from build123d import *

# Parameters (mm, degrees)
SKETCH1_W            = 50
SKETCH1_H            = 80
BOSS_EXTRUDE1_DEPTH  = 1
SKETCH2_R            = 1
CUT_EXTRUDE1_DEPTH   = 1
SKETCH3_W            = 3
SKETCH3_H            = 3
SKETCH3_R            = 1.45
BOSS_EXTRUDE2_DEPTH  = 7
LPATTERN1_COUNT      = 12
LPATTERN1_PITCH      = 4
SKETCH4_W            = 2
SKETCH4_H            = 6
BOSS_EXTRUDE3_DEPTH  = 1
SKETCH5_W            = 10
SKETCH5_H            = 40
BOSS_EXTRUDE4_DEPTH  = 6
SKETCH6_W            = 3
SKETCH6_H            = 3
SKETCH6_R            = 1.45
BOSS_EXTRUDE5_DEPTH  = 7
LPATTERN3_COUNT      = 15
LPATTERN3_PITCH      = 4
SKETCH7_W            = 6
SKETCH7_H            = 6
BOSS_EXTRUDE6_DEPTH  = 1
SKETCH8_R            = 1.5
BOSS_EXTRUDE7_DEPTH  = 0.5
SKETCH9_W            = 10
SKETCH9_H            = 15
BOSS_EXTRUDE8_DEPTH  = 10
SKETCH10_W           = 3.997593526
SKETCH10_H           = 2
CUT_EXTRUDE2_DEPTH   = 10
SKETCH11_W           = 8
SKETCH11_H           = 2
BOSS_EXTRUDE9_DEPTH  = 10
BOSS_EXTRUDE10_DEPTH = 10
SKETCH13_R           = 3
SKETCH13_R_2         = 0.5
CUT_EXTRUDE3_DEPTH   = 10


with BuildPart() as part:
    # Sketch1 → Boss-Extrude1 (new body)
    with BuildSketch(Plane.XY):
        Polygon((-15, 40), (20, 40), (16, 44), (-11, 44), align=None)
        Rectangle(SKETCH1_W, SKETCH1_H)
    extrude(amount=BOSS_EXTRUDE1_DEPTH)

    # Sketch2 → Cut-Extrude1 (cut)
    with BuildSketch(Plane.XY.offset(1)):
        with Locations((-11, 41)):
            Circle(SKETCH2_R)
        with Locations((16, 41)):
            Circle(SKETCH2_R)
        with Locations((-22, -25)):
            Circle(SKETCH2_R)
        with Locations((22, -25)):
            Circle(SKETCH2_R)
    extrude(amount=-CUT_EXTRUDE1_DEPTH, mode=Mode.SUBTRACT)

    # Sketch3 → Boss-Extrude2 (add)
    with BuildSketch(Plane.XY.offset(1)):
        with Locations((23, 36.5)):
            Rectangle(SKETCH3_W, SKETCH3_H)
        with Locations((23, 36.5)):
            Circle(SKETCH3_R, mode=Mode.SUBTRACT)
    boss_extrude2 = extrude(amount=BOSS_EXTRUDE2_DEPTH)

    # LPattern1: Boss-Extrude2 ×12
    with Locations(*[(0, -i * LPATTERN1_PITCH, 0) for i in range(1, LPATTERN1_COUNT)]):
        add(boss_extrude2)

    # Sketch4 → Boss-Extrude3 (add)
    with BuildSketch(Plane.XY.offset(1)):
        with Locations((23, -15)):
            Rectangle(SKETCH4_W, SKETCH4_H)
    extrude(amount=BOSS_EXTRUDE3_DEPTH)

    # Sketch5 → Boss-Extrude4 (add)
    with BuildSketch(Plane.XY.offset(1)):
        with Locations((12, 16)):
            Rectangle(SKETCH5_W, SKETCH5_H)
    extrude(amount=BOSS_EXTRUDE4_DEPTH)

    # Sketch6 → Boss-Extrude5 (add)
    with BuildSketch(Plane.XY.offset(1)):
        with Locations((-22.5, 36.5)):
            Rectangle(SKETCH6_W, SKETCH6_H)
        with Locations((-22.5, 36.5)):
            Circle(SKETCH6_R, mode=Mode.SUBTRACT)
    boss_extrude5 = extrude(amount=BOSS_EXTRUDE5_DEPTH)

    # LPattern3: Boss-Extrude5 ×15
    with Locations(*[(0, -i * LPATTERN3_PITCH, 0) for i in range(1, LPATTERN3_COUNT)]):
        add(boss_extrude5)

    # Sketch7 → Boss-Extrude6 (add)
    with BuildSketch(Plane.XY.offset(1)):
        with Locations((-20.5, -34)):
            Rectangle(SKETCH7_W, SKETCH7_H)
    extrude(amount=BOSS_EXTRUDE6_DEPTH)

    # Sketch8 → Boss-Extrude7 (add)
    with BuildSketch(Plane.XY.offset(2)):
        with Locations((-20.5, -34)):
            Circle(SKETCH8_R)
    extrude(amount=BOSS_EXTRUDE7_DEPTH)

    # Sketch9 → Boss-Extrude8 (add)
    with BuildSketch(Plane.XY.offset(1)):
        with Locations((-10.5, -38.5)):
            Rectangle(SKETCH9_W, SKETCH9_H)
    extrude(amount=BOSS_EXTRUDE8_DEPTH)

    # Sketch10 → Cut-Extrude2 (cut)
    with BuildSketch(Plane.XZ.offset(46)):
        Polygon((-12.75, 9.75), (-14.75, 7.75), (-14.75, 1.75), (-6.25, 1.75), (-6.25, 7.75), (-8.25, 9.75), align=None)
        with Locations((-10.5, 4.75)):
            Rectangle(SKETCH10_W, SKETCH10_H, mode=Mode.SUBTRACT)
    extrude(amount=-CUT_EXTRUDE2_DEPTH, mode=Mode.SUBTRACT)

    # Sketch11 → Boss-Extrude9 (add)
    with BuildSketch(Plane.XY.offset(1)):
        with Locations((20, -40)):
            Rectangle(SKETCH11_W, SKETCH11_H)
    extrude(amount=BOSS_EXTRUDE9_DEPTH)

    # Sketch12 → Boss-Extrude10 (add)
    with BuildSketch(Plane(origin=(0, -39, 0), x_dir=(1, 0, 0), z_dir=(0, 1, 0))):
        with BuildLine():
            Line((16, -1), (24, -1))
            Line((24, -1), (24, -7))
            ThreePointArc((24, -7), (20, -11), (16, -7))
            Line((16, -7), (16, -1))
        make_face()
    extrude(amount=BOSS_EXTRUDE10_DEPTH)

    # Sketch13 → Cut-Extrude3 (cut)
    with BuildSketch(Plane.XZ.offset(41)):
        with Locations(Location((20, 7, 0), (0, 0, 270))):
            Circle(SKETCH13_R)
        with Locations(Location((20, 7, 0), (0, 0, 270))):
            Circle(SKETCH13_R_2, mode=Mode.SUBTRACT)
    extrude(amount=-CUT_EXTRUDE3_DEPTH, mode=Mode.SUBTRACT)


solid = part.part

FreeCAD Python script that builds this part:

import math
import FreeCAD as App
import Part
import Sketcher
from FreeCAD import Vector

doc = App.newDocument("Part")
body = doc.addObject("PartDesign::Body", "Body")

sketch1 = doc.addObject("Sketcher::SketchObject", "Sketch")
body.addObject(sketch1)
sketch1.AttachmentSupport = (doc.XY_Plane, [""])
sketch1.MapMode = "FlatFace"
sketch1.addGeometry(Part.LineSegment(Vector(20, 40, 0), Vector(16, 44, 0)), False)
sketch1.addGeometry(Part.LineSegment(Vector(16, 44, 0), Vector(-11, 44, 0)), False)
sketch1.addGeometry(Part.LineSegment(Vector(-11, 44, 0), Vector(-15, 40, 0)), False)
sketch1.addGeometry(Part.LineSegment(Vector(-15, 40, 0), Vector(-25, 40, 0)), False)
sketch1.addGeometry(Part.LineSegment(Vector(-25, 40, 0), Vector(-25, -40, 0)), False)
sketch1.addGeometry(Part.LineSegment(Vector(-25, -40, 0), Vector(25, -40, 0)), False)
sketch1.addGeometry(Part.LineSegment(Vector(25, -40, 0), Vector(25, 40, 0)), False)
sketch1.addGeometry(Part.LineSegment(Vector(25, 40, 0), Vector(20, 40, 0)), False)
sketch1.addConstraint(Sketcher.Constraint("Coincident", 0, 2, 1, 1))
sketch1.addConstraint(Sketcher.Constraint("Coincident", 1, 2, 2, 1))
sketch1.addConstraint(Sketcher.Constraint("Coincident", 2, 2, 3, 1))
sketch1.addConstraint(Sketcher.Constraint("Coincident", 3, 2, 4, 1))
sketch1.addConstraint(Sketcher.Constraint("Coincident", 4, 2, 5, 1))
sketch1.addConstraint(Sketcher.Constraint("Coincident", 5, 2, 6, 1))
sketch1.addConstraint(Sketcher.Constraint("Coincident", 6, 2, 7, 1))
sketch1.addConstraint(Sketcher.Constraint("Coincident", 7, 2, 0, 1))
sketch1.addConstraint(Sketcher.Constraint("Horizontal", 1))
sketch1.addConstraint(Sketcher.Constraint("Horizontal", 3))
sketch1.addConstraint(Sketcher.Constraint("Vertical", 4))
sketch1.addConstraint(Sketcher.Constraint("Horizontal", 5))
sketch1.addConstraint(Sketcher.Constraint("Vertical", 6))
sketch1.addConstraint(Sketcher.Constraint("Horizontal", 7))
sketch1.addConstraint(Sketcher.Constraint("Symmetric", 3, 2, 5, 2, -1, 1))
sketch1.addConstraint(Sketcher.Constraint("Perpendicular", 0, 2))
sketch1.addConstraint(Sketcher.Constraint("Horizontal", 3, 2, 6, 2))
sketch1.addConstraint(Sketcher.Constraint("Equal", 0, 2))
sketch1.addConstraint(Sketcher.Constraint("DistanceX", 1, 2, 1, 1, 27.0))
sketch1.addConstraint(Sketcher.Constraint("DistanceX", 3, 2, 3, 1, 10.0))
sketch1.addConstraint(Sketcher.Constraint("DistanceX", 5, 1, 5, 2, 50.0))
sketch1.addConstraint(Sketcher.Constraint("DistanceX", 7, 2, 7, 1, 5.0))
sketch1.addConstraint(Sketcher.Constraint("DistanceY", 4, 2, 4, 1, 80.0))
pad1 = doc.addObject("PartDesign::Pad", "Pad")
body.addObject(pad1)
pad1.Profile = sketch1
pad1.Length = 1

sketch2 = doc.addObject("Sketcher::SketchObject", "Sketch001")
body.addObject(sketch2)
sketch2.AttachmentSupport = (doc.XY_Plane, [""])
sketch2.MapMode = "FlatFace"
sketch2.AttachmentOffset = App.Placement(Vector(0, 0, 1), App.Rotation())
sketch2.addGeometry(Part.Circle(Vector(-11, 41, 0), Vector(0, 0, 1), 1), False)
sketch2.addGeometry(Part.Circle(Vector(16, 41, 0), Vector(0, 0, 1), 1), False)
sketch2.addGeometry(Part.Circle(Vector(-22, -25, 0), Vector(0, 0, 1), 1), False)
sketch2.addGeometry(Part.Circle(Vector(22, -25, 0), Vector(0, 0, 1), 1), False)
sketch2.addConstraint(Sketcher.Constraint("Equal", 0, 1))
sketch2.addConstraint(Sketcher.Constraint("Equal", 1, 2))
sketch2.addConstraint(Sketcher.Constraint("Equal", 2, 3))
sketch2.addConstraint(Sketcher.Constraint("Symmetric", 2, 3, 3, 3, -2))
sketch2.addConstraint(Sketcher.Constraint("Horizontal", 0, 3, 1, 3))
sketch2.addConstraint(Sketcher.Constraint("Diameter", 0, 2.0))
sketch2.addConstraint(Sketcher.Constraint("DistanceX", 0, 3, -1, 1, 11.0))
sketch2.addConstraint(Sketcher.Constraint("DistanceY", -1, 1, 0, 3, 41.0))
sketch2.addConstraint(Sketcher.Constraint("DistanceX", -1, 1, 1, 3, 16.0))
sketch2.addConstraint(Sketcher.Constraint("DistanceX", 2, 3, -1, 1, 22.0))
sketch2.addConstraint(Sketcher.Constraint("DistanceY", 2, 3, -1, 1, 25.0))
pocket1 = doc.addObject("PartDesign::Pocket", "Pocket")
body.addObject(pocket1)
pocket1.Profile = sketch2
pocket1.Length = 1

sketch3 = doc.addObject("Sketcher::SketchObject", "Sketch002")
body.addObject(sketch3)
sketch3.AttachmentSupport = (doc.XY_Plane, [""])
sketch3.MapMode = "FlatFace"
sketch3.AttachmentOffset = App.Placement(Vector(0, 0, 1), App.Rotation())
sketch3.addGeometry(Part.LineSegment(Vector(21.5, 38, 0), Vector(21.5, 35, 0)), False)
sketch3.addGeometry(Part.LineSegment(Vector(21.5, 35, 0), Vector(24.5, 35, 0)), False)
sketch3.addGeometry(Part.LineSegment(Vector(24.5, 35, 0), Vector(24.5, 38, 0)), False)
sketch3.addGeometry(Part.LineSegment(Vector(24.5, 38, 0), Vector(21.5, 38, 0)), False)
sketch3.addGeometry(Part.Circle(Vector(23, 36.5, 0), Vector(0, 0, 1), 1.45), False)
sketch3.addConstraint(Sketcher.Constraint("Coincident", 0, 2, 1, 1))
sketch3.addConstraint(Sketcher.Constraint("Coincident", 1, 2, 2, 1))
sketch3.addConstraint(Sketcher.Constraint("Coincident", 2, 2, 3, 1))
sketch3.addConstraint(Sketcher.Constraint("Coincident", 3, 2, 0, 1))
sketch3.addConstraint(Sketcher.Constraint("Vertical", 0))
sketch3.addConstraint(Sketcher.Constraint("Horizontal", 1))
sketch3.addConstraint(Sketcher.Constraint("Vertical", 2))
sketch3.addConstraint(Sketcher.Constraint("Horizontal", 3))
sketch3.addConstraint(Sketcher.Constraint("Equal", 3, 0))
sketch3.addConstraint(Sketcher.Constraint("Diameter", 4, 2.9))
sketch3.addConstraint(Sketcher.Constraint("DistanceX", 1, 1, 1, 2, 3.0))
sketch3.addConstraint(Sketcher.Constraint("DistanceX", -1, 1, 4, 3, 23.0))
sketch3.addConstraint(Sketcher.Constraint("DistanceY", -1, 1, 0, 2, 35.0))
sketch3.addConstraint(Sketcher.Constraint("DistanceY", -1, 1, 4, 3, 36.5))
sketch3.addConstraint(Sketcher.Constraint("DistanceX", -1, 1, 0, 2, 21.5))
pad2 = doc.addObject("PartDesign::Pad", "Pad001")
body.addObject(pad2)
pad2.Profile = sketch3
pad2.Length = 7
doc.recompute()

linearpattern = doc.addObject("PartDesign::LinearPattern", "LinearPattern")
body.addObject(linearpattern)
linearpattern.Originals = [pad2]
linearpattern.Direction = (doc.Y_Axis, [""])
linearpattern.Mode = "offset"
linearpattern.Offset = 4
linearpattern.Occurrences = 12
linearpattern.Reversed = True
body.Tip = linearpattern

sketch4 = doc.addObject("Sketcher::SketchObject", "Sketch003")
body.addObject(sketch4)
sketch4.AttachmentSupport = (doc.XY_Plane, [""])
sketch4.MapMode = "FlatFace"
sketch4.AttachmentOffset = App.Placement(Vector(0, 0, 1), App.Rotation())
sketch4.addGeometry(Part.LineSegment(Vector(22, -12, 0), Vector(22, -18, 0)), False)
sketch4.addGeometry(Part.LineSegment(Vector(22, -18, 0), Vector(24, -18, 0)), False)
sketch4.addGeometry(Part.LineSegment(Vector(24, -18, 0), Vector(24, -12, 0)), False)
sketch4.addGeometry(Part.LineSegment(Vector(24, -12, 0), Vector(22, -12, 0)), False)
sketch4.addConstraint(Sketcher.Constraint("Coincident", 0, 2, 1, 1))
sketch4.addConstraint(Sketcher.Constraint("Coincident", 1, 2, 2, 1))
sketch4.addConstraint(Sketcher.Constraint("Coincident", 2, 2, 3, 1))
sketch4.addConstraint(Sketcher.Constraint("Coincident", 3, 2, 0, 1))
sketch4.addConstraint(Sketcher.Constraint("Vertical", 0))
sketch4.addConstraint(Sketcher.Constraint("Horizontal", 1))
sketch4.addConstraint(Sketcher.Constraint("Vertical", 2))
sketch4.addConstraint(Sketcher.Constraint("Horizontal", 3))
sketch4.addConstraint(Sketcher.Constraint("DistanceX", 1, 1, 1, 2, 2.0))
sketch4.addConstraint(Sketcher.Constraint("DistanceY", 0, 2, 0, 1, 6.0))
sketch4.addConstraint(Sketcher.Constraint("DistanceX", -1, 1, 0, 2, 22.0))
sketch4.addConstraint(Sketcher.Constraint("DistanceY", 0, 2, -1, 1, 18.0))
pad3 = doc.addObject("PartDesign::Pad", "Pad002")
body.addObject(pad3)
pad3.Profile = sketch4
pad3.Length = 1

sketch5 = doc.addObject("Sketcher::SketchObject", "Sketch004")
body.addObject(sketch5)
sketch5.AttachmentSupport = (doc.XY_Plane, [""])
sketch5.MapMode = "FlatFace"
sketch5.AttachmentOffset = App.Placement(Vector(0, 0, 1), App.Rotation())
sketch5.addGeometry(Part.LineSegment(Vector(7, 36, 0), Vector(7, -4, 0)), False)
sketch5.addGeometry(Part.LineSegment(Vector(7, -4, 0), Vector(17, -4, 0)), False)
sketch5.addGeometry(Part.LineSegment(Vector(17, -4, 0), Vector(17, 36, 0)), False)
sketch5.addGeometry(Part.LineSegment(Vector(17, 36, 0), Vector(7, 36, 0)), False)
sketch5.addConstraint(Sketcher.Constraint("Coincident", 0, 2, 1, 1))
sketch5.addConstraint(Sketcher.Constraint("Coincident", 1, 2, 2, 1))
sketch5.addConstraint(Sketcher.Constraint("Coincident", 2, 2, 3, 1))
sketch5.addConstraint(Sketcher.Constraint("Coincident", 3, 2, 0, 1))
sketch5.addConstraint(Sketcher.Constraint("Vertical", 0))
sketch5.addConstraint(Sketcher.Constraint("Horizontal", 1))
sketch5.addConstraint(Sketcher.Constraint("Vertical", 2))
sketch5.addConstraint(Sketcher.Constraint("Horizontal", 3))
sketch5.addConstraint(Sketcher.Constraint("DistanceX", 1, 1, 1, 2, 10.0))
sketch5.addConstraint(Sketcher.Constraint("DistanceY", 0, 2, 0, 1, 40.0))
sketch5.addConstraint(Sketcher.Constraint("DistanceX", -1, 1, 0, 2, 7.0))
sketch5.addConstraint(Sketcher.Constraint("DistanceY", 0, 2, -1, 1, 4.0))
pad4 = doc.addObject("PartDesign::Pad", "Pad003")
body.addObject(pad4)
pad4.Profile = sketch5
pad4.Length = 6

sketch6 = doc.addObject("Sketcher::SketchObject", "Sketch005")
body.addObject(sketch6)
sketch6.AttachmentSupport = (doc.XY_Plane, [""])
sketch6.MapMode = "FlatFace"
sketch6.AttachmentOffset = App.Placement(Vector(0, 0, 1), App.Rotation())
sketch6.addGeometry(Part.LineSegment(Vector(-24, 38, 0), Vector(-24, 35, 0)), False)
sketch6.addGeometry(Part.LineSegment(Vector(-24, 35, 0), Vector(-21, 35, 0)), False)
sketch6.addGeometry(Part.LineSegment(Vector(-21, 35, 0), Vector(-21, 38, 0)), False)
sketch6.addGeometry(Part.LineSegment(Vector(-21, 38, 0), Vector(-24, 38, 0)), False)
sketch6.addGeometry(Part.Circle(Vector(-22.5, 36.5, 0), Vector(0, 0, 1), 1.45), False)
sketch6.addConstraint(Sketcher.Constraint("Coincident", 0, 2, 1, 1))
sketch6.addConstraint(Sketcher.Constraint("Coincident", 1, 2, 2, 1))
sketch6.addConstraint(Sketcher.Constraint("Coincident", 2, 2, 3, 1))
sketch6.addConstraint(Sketcher.Constraint("Coincident", 3, 2, 0, 1))
sketch6.addConstraint(Sketcher.Constraint("Vertical", 0))
sketch6.addConstraint(Sketcher.Constraint("Horizontal", 1))
sketch6.addConstraint(Sketcher.Constraint("Vertical", 2))
sketch6.addConstraint(Sketcher.Constraint("Horizontal", 3))
sketch6.addConstraint(Sketcher.Constraint("Equal", 3, 0))
sketch6.addConstraint(Sketcher.Constraint("Diameter", 4, 2.9))
sketch6.addConstraint(Sketcher.Constraint("DistanceX", 1, 1, 1, 2, 3.0))
sketch6.addConstraint(Sketcher.Constraint("DistanceX", 0, 2, -1, 1, 24.0))
sketch6.addConstraint(Sketcher.Constraint("DistanceY", -1, 1, 0, 2, 35.0))
sketch6.addConstraint(Sketcher.Constraint("DistanceX", 4, 3, -1, 1, 22.5))
sketch6.addConstraint(Sketcher.Constraint("DistanceY", -1, 1, 4, 3, 36.5))
pad5 = doc.addObject("PartDesign::Pad", "Pad004")
body.addObject(pad5)
pad5.Profile = sketch6
pad5.Length = 7
doc.recompute()

linearpattern2 = doc.addObject("PartDesign::LinearPattern", "LinearPattern001")
body.addObject(linearpattern2)
linearpattern2.Originals = [pad5]
linearpattern2.Direction = (doc.Y_Axis, [""])
linearpattern2.Mode = "offset"
linearpattern2.Offset = 4
linearpattern2.Occurrences = 15
linearpattern2.Reversed = True
body.Tip = linearpattern2

sketch7 = doc.addObject("Sketcher::SketchObject", "Sketch006")
body.addObject(sketch7)
sketch7.AttachmentSupport = (doc.XY_Plane, [""])
sketch7.MapMode = "FlatFace"
sketch7.AttachmentOffset = App.Placement(Vector(0, 0, 1), App.Rotation())
sketch7.addGeometry(Part.LineSegment(Vector(-23.5, -31, 0), Vector(-23.5, -37, 0)), False)
sketch7.addGeometry(Part.LineSegment(Vector(-23.5, -37, 0), Vector(-17.5, -37, 0)), False)
sketch7.addGeometry(Part.LineSegment(Vector(-17.5, -37, 0), Vector(-17.5, -31, 0)), False)
sketch7.addGeometry(Part.LineSegment(Vector(-17.5, -31, 0), Vector(-23.5, -31, 0)), False)
sketch7.addConstraint(Sketcher.Constraint("Coincident", 0, 2, 1, 1))
sketch7.addConstraint(Sketcher.Constraint("Coincident", 1, 2, 2, 1))
sketch7.addConstraint(Sketcher.Constraint("Coincident", 2, 2, 3, 1))
sketch7.addConstraint(Sketcher.Constraint("Coincident", 3, 2, 0, 1))
sketch7.addConstraint(Sketcher.Constraint("Vertical", 0))
sketch7.addConstraint(Sketcher.Constraint("Horizontal", 1))
sketch7.addConstraint(Sketcher.Constraint("Vertical", 2))
sketch7.addConstraint(Sketcher.Constraint("Horizontal", 3))
sketch7.addConstraint(Sketcher.Constraint("Equal", 3, 0))
sketch7.addConstraint(Sketcher.Constraint("DistanceX", 1, 1, 1, 2, 6.0))
sketch7.addConstraint(Sketcher.Constraint("DistanceY", 0, 2, -1, 1, 37.0))
sketch7.addConstraint(Sketcher.Constraint("DistanceX", 0, 2, -1, 1, 23.5))
pad6 = doc.addObject("PartDesign::Pad", "Pad005")
body.addObject(pad6)
pad6.Profile = sketch7
pad6.Length = 1

sketch8 = doc.addObject("Sketcher::SketchObject", "Sketch007")
body.addObject(sketch8)
sketch8.AttachmentSupport = (doc.XY_Plane, [""])
sketch8.MapMode = "FlatFace"
sketch8.AttachmentOffset = App.Placement(Vector(0, 0, 2), App.Rotation())
sketch8.addGeometry(Part.Circle(Vector(-20.5, -34, 0), Vector(0, 0, 1), 1.5), False)
sketch8.addConstraint(Sketcher.Constraint("Diameter", 0, 3.0))
sketch8.addConstraint(Sketcher.Constraint("DistanceY", 0, 3, -1, 1, 34.0))
sketch8.addConstraint(Sketcher.Constraint("DistanceX", 0, 3, -1, 1, 20.5))
pad7 = doc.addObject("PartDesign::Pad", "Pad006")
body.addObject(pad7)
pad7.Profile = sketch8
pad7.Length = 0.5

sketch9 = doc.addObject("Sketcher::SketchObject", "Sketch008")
body.addObject(sketch9)
sketch9.AttachmentSupport = (doc.XY_Plane, [""])
sketch9.MapMode = "FlatFace"
sketch9.AttachmentOffset = App.Placement(Vector(0, 0, 1), App.Rotation())
sketch9.addGeometry(Part.LineSegment(Vector(-15.5, -31, 0), Vector(-15.5, -46, 0)), False)
sketch9.addGeometry(Part.LineSegment(Vector(-15.5, -46, 0), Vector(-5.5, -46, 0)), False)
sketch9.addGeometry(Part.LineSegment(Vector(-5.5, -46, 0), Vector(-5.5, -31, 0)), False)
sketch9.addGeometry(Part.LineSegment(Vector(-5.5, -31, 0), Vector(-15.5, -31, 0)), False)
sketch9.addConstraint(Sketcher.Constraint("Coincident", 0, 2, 1, 1))
sketch9.addConstraint(Sketcher.Constraint("Coincident", 1, 2, 2, 1))
sketch9.addConstraint(Sketcher.Constraint("Coincident", 2, 2, 3, 1))
sketch9.addConstraint(Sketcher.Constraint("Coincident", 3, 2, 0, 1))
sketch9.addConstraint(Sketcher.Constraint("Vertical", 0))
sketch9.addConstraint(Sketcher.Constraint("Horizontal", 1))
sketch9.addConstraint(Sketcher.Constraint("Vertical", 2))
sketch9.addConstraint(Sketcher.Constraint("Horizontal", 3))
sketch9.addConstraint(Sketcher.Constraint("DistanceX", 1, 1, 1, 2, 10.0))
sketch9.addConstraint(Sketcher.Constraint("DistanceY", 0, 2, 0, 1, 15.0))
sketch9.addConstraint(Sketcher.Constraint("DistanceY", 0, 2, -1, 1, 46.0))
sketch9.addConstraint(Sketcher.Constraint("DistanceX", 0, 2, -1, 1, 15.5))
pad8 = doc.addObject("PartDesign::Pad", "Pad007")
body.addObject(pad8)
pad8.Profile = sketch9
pad8.Length = 10

sketch10 = doc.addObject("Sketcher::SketchObject", "Sketch009")
body.addObject(sketch10)
sketch10.AttachmentSupport = (doc.XZ_Plane, [""])
sketch10.MapMode = "FlatFace"
sketch10.AttachmentOffset = App.Placement(Vector(0, 0, 46), App.Rotation())
sketch10.addGeometry(Part.LineSegment(Vector(-12.75, 9.75, 0), Vector(-14.75, 7.75, 0)), False)
sketch10.addGeometry(Part.LineSegment(Vector(-14.75, 7.75, 0), Vector(-14.75, 1.75, 0)), False)
sketch10.addGeometry(Part.LineSegment(Vector(-14.75, 1.75, 0), Vector(-6.25, 1.75, 0)), False)
sketch10.addGeometry(Part.LineSegment(Vector(-6.25, 1.75, 0), Vector(-6.25, 7.75, 0)), False)
sketch10.addGeometry(Part.LineSegment(Vector(-6.25, 7.75, 0), Vector(-8.25, 9.75, 0)), False)
sketch10.addGeometry(Part.LineSegment(Vector(-8.25, 9.75, 0), Vector(-12.75, 9.75, 0)), False)
sketch10.addGeometry(Part.LineSegment(Vector(-8.501203, 3.75, 0), Vector(-12.498797, 3.75, 0)), False)
sketch10.addGeometry(Part.LineSegment(Vector(-12.498797, 3.75, 0), Vector(-12.498797, 5.75, 0)), False)
sketch10.addGeometry(Part.LineSegment(Vector(-12.498797, 5.75, 0), Vector(-8.501203, 5.75, 0)), False)
sketch10.addGeometry(Part.LineSegment(Vector(-8.501203, 5.75, 0), Vector(-8.501203, 3.75, 0)), False)
sketch10.addConstraint(Sketcher.Constraint("Coincident", 0, 2, 1, 1))
sketch10.addConstraint(Sketcher.Constraint("Coincident", 1, 2, 2, 1))
sketch10.addConstraint(Sketcher.Constraint("Coincident", 2, 2, 3, 1))
sketch10.addConstraint(Sketcher.Constraint("Coincident", 3, 2, 4, 1))
sketch10.addConstraint(Sketcher.Constraint("Coincident", 4, 2, 5, 1))
sketch10.addConstraint(Sketcher.Constraint("Coincident", 5, 2, 0, 1))
sketch10.addConstraint(Sketcher.Constraint("Coincident", 6, 2, 7, 1))
sketch10.addConstraint(Sketcher.Constraint("Coincident", 7, 2, 8, 1))
sketch10.addConstraint(Sketcher.Constraint("Coincident", 8, 2, 9, 1))
sketch10.addConstraint(Sketcher.Constraint("Coincident", 9, 2, 6, 1))
sketch10.addConstraint(Sketcher.Constraint("Vertical", 1))
sketch10.addConstraint(Sketcher.Constraint("Horizontal", 2))
sketch10.addConstraint(Sketcher.Constraint("Vertical", 3))
sketch10.addConstraint(Sketcher.Constraint("Horizontal", 5))
sketch10.addConstraint(Sketcher.Constraint("Horizontal", 6))
sketch10.addConstraint(Sketcher.Constraint("Vertical", 7))
sketch10.addConstraint(Sketcher.Constraint("Horizontal", 8))
sketch10.addConstraint(Sketcher.Constraint("Vertical", 9))
sketch10.addConstraint(Sketcher.Constraint("Perpendicular", 0, 4))
sketch10.addConstraint(Sketcher.Constraint("Horizontal", 0, 2, 3, 2))
sketch10.addConstraint(Sketcher.Constraint("Equal", 0, 4))
sketch10.addConstraint(Sketcher.Constraint("DistanceY", 1, 2, 1, 1, 6.0))
sketch10.addConstraint(Sketcher.Constraint("DistanceY", 7, 1, 7, 2, 2.0))
sketch10.addConstraint(Sketcher.Constraint("DistanceX", 2, 1, 2, 2, 8.5))
sketch10.addConstraint(Sketcher.Constraint("DistanceX", 5, 2, 5, 1, 4.5))
sketch10.addConstraint(Sketcher.Constraint("DistanceY", 1, 2, 6, 2, 2.0))
sketch10.addConstraint(Sketcher.Constraint("DistanceX", 0, 2, -1, 1, 14.75))
sketch10.addConstraint(Sketcher.Constraint("DistanceY", -1, 1, 0, 2, 7.75))
sketch10.addConstraint(Sketcher.Constraint("DistanceX", 6, 2, 6, 1, 3.997594))
sketch10.addConstraint(Sketcher.Constraint("DistanceX", 6, 2, -1, 1, 12.498797))
pocket2 = doc.addObject("PartDesign::Pocket", "Pocket001")
body.addObject(pocket2)
pocket2.Profile = sketch10
pocket2.Length = 10

sketch11 = doc.addObject("Sketcher::SketchObject", "Sketch010")
body.addObject(sketch11)
sketch11.AttachmentSupport = (doc.XY_Plane, [""])
sketch11.MapMode = "FlatFace"
sketch11.AttachmentOffset = App.Placement(Vector(0, 0, 1), App.Rotation())
sketch11.addGeometry(Part.LineSegment(Vector(16, -39, 0), Vector(16, -41, 0)), False)
sketch11.addGeometry(Part.LineSegment(Vector(16, -41, 0), Vector(24, -41, 0)), False)
sketch11.addGeometry(Part.LineSegment(Vector(24, -41, 0), Vector(24, -39, 0)), False)
sketch11.addGeometry(Part.LineSegment(Vector(24, -39, 0), Vector(16, -39, 0)), False)
sketch11.addConstraint(Sketcher.Constraint("Coincident", 0, 2, 1, 1))
sketch11.addConstraint(Sketcher.Constraint("Coincident", 1, 2, 2, 1))
sketch11.addConstraint(Sketcher.Constraint("Coincident", 2, 2, 3, 1))
sketch11.addConstraint(Sketcher.Constraint("Coincident", 3, 2, 0, 1))
sketch11.addConstraint(Sketcher.Constraint("Vertical", 0))
sketch11.addConstraint(Sketcher.Constraint("Horizontal", 1))
sketch11.addConstraint(Sketcher.Constraint("Vertical", 2))
sketch11.addConstraint(Sketcher.Constraint("Horizontal", 3))
sketch11.addConstraint(Sketcher.Constraint("DistanceX", 1, 1, 1, 2, 8.0))
sketch11.addConstraint(Sketcher.Constraint("DistanceY", 0, 2, 0, 1, 2.0))
sketch11.addConstraint(Sketcher.Constraint("DistanceX", -1, 1, 0, 2, 16.0))
sketch11.addConstraint(Sketcher.Constraint("DistanceY", 0, 2, -1, 1, 41.0))
pad9 = doc.addObject("PartDesign::Pad", "Pad008")
body.addObject(pad9)
pad9.Profile = sketch11
pad9.Length = 10

sketch12 = doc.addObject("Sketcher::SketchObject", "Sketch011")
body.addObject(sketch12)
sketch12.AttachmentSupport = (doc.XZ_Plane, [""])
sketch12.MapMode = "FlatFace"
sketch12.AttachmentOffset = App.Placement(Vector(0, 0, 39), App.Rotation())
sketch12.addGeometry(Part.LineSegment(Vector(24, 1, 0), Vector(16, 1, 0)), False)
sketch12.addGeometry(Part.LineSegment(Vector(16, 1, 0), Vector(16, 7, 0)), False)
sketch12.addGeometry(Part.ArcOfCircle(Part.Circle(Vector(20, 7, 0), Vector(0, 0, 1), 4), math.radians(0), math.radians(180)), False)
sketch12.addGeometry(Part.LineSegment(Vector(24, 7, 0), Vector(24, 1, 0)), False)
sketch12.addConstraint(Sketcher.Constraint("Coincident", 0, 2, 1, 1))
sketch12.addConstraint(Sketcher.Constraint("Tangent", 1, 2, 2, 2))
sketch12.addConstraint(Sketcher.Constraint("Tangent", 2, 1, 3, 1))
sketch12.addConstraint(Sketcher.Constraint("Coincident", 3, 2, 0, 1))
sketch12.addConstraint(Sketcher.Constraint("Horizontal", 0))
sketch12.addConstraint(Sketcher.Constraint("Vertical", 1))
sketch12.addConstraint(Sketcher.Constraint("Vertical", 3))
sketch12.addConstraint(Sketcher.Constraint("Radius", 2, 4.0))
sketch12.addConstraint(Sketcher.Constraint("DistanceY", 1, 1, 1, 2, 6.0))
sketch12.addConstraint(Sketcher.Constraint("DistanceX", -1, 1, 2, 3, 20.0))
sketch12.addConstraint(Sketcher.Constraint("DistanceY", -1, 1, 2, 3, 7.0))
pad10 = doc.addObject("PartDesign::Pad", "Pad009")
body.addObject(pad10)
pad10.Profile = sketch12
pad10.Length = 10
pad10.Reversed = True

sketch13 = doc.addObject("Sketcher::SketchObject", "Sketch012")
body.addObject(sketch13)
sketch13.AttachmentSupport = (doc.XZ_Plane, [""])
sketch13.MapMode = "FlatFace"
sketch13.AttachmentOffset = App.Placement(Vector(0, 0, 41), App.Rotation())
sketch13.addGeometry(Part.Circle(Vector(20, 7, 0), Vector(0, 0, 1), 3), False)
sketch13.addGeometry(Part.Circle(Vector(20, 7, 0), Vector(0, 0, 1), 0.5), False)
sketch13.addConstraint(Sketcher.Constraint("Coincident", 1, 3, 0, 3))
sketch13.addConstraint(Sketcher.Constraint("Diameter", 0, 6.0))
sketch13.addConstraint(Sketcher.Constraint("Diameter", 1, 1.0))
sketch13.addConstraint(Sketcher.Constraint("DistanceX", -1, 1, 0, 3, 20.0))
sketch13.addConstraint(Sketcher.Constraint("DistanceY", -1, 1, 0, 3, 7.0))
pocket3 = doc.addObject("PartDesign::Pocket", "Pocket002")
body.addObject(pocket3)
pocket3.Profile = sketch13
pocket3.Length = 10

doc.recompute()
